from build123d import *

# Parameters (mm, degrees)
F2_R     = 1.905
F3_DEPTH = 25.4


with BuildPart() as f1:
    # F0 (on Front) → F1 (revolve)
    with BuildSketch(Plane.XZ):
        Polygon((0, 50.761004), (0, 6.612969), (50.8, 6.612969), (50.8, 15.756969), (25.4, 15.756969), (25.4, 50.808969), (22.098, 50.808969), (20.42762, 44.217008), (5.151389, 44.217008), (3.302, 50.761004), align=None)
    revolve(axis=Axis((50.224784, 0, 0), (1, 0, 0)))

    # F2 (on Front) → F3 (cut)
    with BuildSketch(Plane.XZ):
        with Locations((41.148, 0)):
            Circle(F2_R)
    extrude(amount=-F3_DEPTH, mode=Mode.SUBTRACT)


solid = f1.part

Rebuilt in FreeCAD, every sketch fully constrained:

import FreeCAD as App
import Part
import Sketcher

V = App.Vector
Q = App.Units.Quantity

doc = App.newDocument("Part")
body = doc.addObject("PartDesign::Body", "Body")

sketch1 = doc.addObject("Sketcher::SketchObject", "Sketch")
body.addObject(sketch1)
sketch1.AttachmentSupport = (doc.XZ_Plane, [""])
sketch1.MapMode = "FlatFace"
sketch1.addGeometry(Part.LineSegment(V(0, 50.761004, 0), V(0, 6.612969, 0)), False)
sketch1.addGeometry(Part.LineSegment(V(0, 6.612969, 0), V(50.8, 6.612969, 0)), False)
sketch1.addGeometry(Part.LineSegment(V(50.8, 6.612969, 0), V(50.8, 15.756969, 0)), False)
sketch1.addGeometry(Part.LineSegment(V(50.8, 15.756969, 0), V(25.4, 15.756969, 0)), False)
sketch1.addGeometry(Part.LineSegment(V(25.4, 15.756969, 0), V(25.4, 50.808969, 0)), False)
sketch1.addGeometry(Part.LineSegment(V(25.4, 50.808969, 0), V(22.098, 50.808969, 0)), False)
sketch1.addGeometry(Part.LineSegment(V(22.098, 50.808969, 0), V(20.42762, 44.217008, 0)), False)
sketch1.addGeometry(Part.LineSegment(V(20.42762, 44.217008, 0), V(5.151389, 44.217008, 0)), False)
sketch1.addGeometry(Part.LineSegment(V(5.151389, 44.217008, 0), V(3.302, 50.761004, 0)), False)
sketch1.addGeometry(Part.LineSegment(V(3.302, 50.761004, 0), V(0, 50.761004, 0)), False)
sketch1.addConstraint(Sketcher.Constraint("Coincident", 0, 2, 1, 1))
sketch1.addConstraint(Sketcher.Constraint("Coincident", 1, 2, 2, 1))
sketch1.addConstraint(Sketcher.Constraint("Coincident", 2, 2, 3, 1))
sketch1.addConstraint(Sketcher.Constraint("Coincident", 3, 2, 4, 1))
sketch1.addConstraint(Sketcher.Constraint("Coincident", 4, 2, 5, 1))
sketch1.addConstraint(Sketcher.Constraint("Coincident", 5, 2, 6, 1))
sketch1.addConstraint(Sketcher.Constraint("Coincident", 6, 2, 7, 1))
sketch1.addConstraint(Sketcher.Constraint("Coincident", 7, 2, 8, 1))
sketch1.addConstraint(Sketcher.Constraint("Coincident", 8, 2, 9, 1))
sketch1.addConstraint(Sketcher.Constraint("Coincident", 9, 2, 0, 1))
sketch1.addConstraint(Sketcher.Constraint("Vertical", 0))
sketch1.addConstraint(Sketcher.Constraint("Horizontal", 1))
sketch1.addConstraint(Sketcher.Constraint("Vertical", 2))
sketch1.addConstraint(Sketcher.Constraint("Horizontal", 3))
sketch1.addConstraint(Sketcher.Constraint("Vertical", 4))
sketch1.addConstraint(Sketcher.Constraint("Horizontal", 5))
sketch1.addConstraint(Sketcher.Constraint("Horizontal", 7))
sketch1.addConstraint(Sketcher.Constraint("Horizontal", 9))
sketch1.addConstraint(Sketcher.Constraint("PointOnObject", 0, 2, -2))
sketch1.addConstraint(Sketcher.Constraint("Equal", 5, 9))
sketch1.addConstraint(Sketcher.Constraint("Equal", 6, 8))
sketch1.addConstraint(Sketcher.Constraint("DistanceX", 1, 1, 1, 2, Q("2 in")))
sketch1.addConstraint(Sketcher.Constraint("DistanceX", 3, 2, 3, 1, Q("1 in")))
sketch1.addConstraint(Sketcher.Constraint("DistanceX", 5, 2, 5, 1, Q("0.13 in")))
sketch1.addConstraint(Sketcher.Constraint("DistanceY", 2, 1, 2, 2, Q("0.36 in")))
sketch1.addConstraint(Sketcher.Constraint("DistanceY", 4, 1, 4, 2, Q("1.38 in")))
sketch1.addConstraint(Sketcher.Constraint("DistanceX", 7, 2, 7, 1, 15.276231))
sketch1.addConstraint(Sketcher.Constraint("DistanceY", 0, 2, 0, 1, 44.148035))
sketch1.addConstraint(Sketcher.Constraint("DistanceY", -1, 1, 0, 2, 6.612969))
sketch1.addConstraint(Sketcher.Constraint("DistanceX", -1, 1, 6, 2, 20.42762))
revolution = doc.addObject("PartDesign::Revolution", "Revolution")
body.addObject(revolution)
revolution.Profile = sketch1
revolution.ReferenceAxis = (sketch1, ["H_Axis"])
revolution.Angle = 360

sketch2 = doc.addObject("Sketcher::SketchObject", "Sketch001")
body.addObject(sketch2)
sketch2.AttachmentSupport = (doc.XZ_Plane, [""])
sketch2.MapMode = "FlatFace"
sketch2.addGeometry(Part.Circle(V(41.148, 0, 0), V(0, 0, 1), 1.905), False)
sketch2.addConstraint(Sketcher.Constraint("PointOnObject", 0, 3, -1))
sketch2.addConstraint(Sketcher.Constraint("Diameter", 0, Q("0.15 in")))
sketch2.addConstraint(Sketcher.Constraint("DistanceX", -1, 1, 0, 3, Q("1.62 in")))
pocket1 = doc.addObject("PartDesign::Pocket", "Pocket")
body.addObject(pocket1)
pocket1.Profile = sketch2
pocket1.Length = Q("1 in")

doc.recompute()
